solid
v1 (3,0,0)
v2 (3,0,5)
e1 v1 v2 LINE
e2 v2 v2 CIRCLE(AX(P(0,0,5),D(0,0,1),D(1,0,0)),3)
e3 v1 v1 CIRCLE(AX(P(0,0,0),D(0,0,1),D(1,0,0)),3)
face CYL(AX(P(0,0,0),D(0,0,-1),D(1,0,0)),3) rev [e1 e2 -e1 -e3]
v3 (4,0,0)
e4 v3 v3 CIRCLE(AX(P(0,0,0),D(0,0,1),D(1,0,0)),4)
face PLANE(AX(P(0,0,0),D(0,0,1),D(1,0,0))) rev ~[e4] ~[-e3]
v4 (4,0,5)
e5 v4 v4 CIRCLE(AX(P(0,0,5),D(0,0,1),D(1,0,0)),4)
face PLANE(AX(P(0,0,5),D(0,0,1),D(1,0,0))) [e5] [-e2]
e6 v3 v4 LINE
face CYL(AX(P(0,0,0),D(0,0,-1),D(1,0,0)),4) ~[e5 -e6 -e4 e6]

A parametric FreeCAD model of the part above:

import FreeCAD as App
import Part
import Sketcher
from FreeCAD import Vector
Q = App.Units.Quantity

doc = App.newDocument("Part")
body = doc.addObject("PartDesign::Body", "Body")

# Sketch on XY plane
sketch1 = body.newObject("Sketcher::SketchObject", "Sketch")
sketch1.AttachmentSupport = (doc.getObject("XY_Plane"), [""])
sketch1.MapMode = "FlatFace"
sketch1.addGeometry([
    Part.Circle(Vector(0, 0, 0), Vector(0, 0, 1), 4),
    Part.Circle(Vector(0, 0, 0), Vector(0, 0, 1), 3),
], False)
sketch1.addConstraint([
    Sketcher.Constraint("Coincident", 0, 3, -1, 1),
    Sketcher.Constraint("Coincident", 1, 3, -1, 1),
    Sketcher.Constraint("Diameter", 0, Q("8 mm")),
    Sketcher.Constraint("Diameter", 1, Q("6 mm")),
])
pad1 = body.newObject("PartDesign::Pad", "Pad")
pad1.Profile = sketch1
pad1.Length = 5

doc.recompute()
